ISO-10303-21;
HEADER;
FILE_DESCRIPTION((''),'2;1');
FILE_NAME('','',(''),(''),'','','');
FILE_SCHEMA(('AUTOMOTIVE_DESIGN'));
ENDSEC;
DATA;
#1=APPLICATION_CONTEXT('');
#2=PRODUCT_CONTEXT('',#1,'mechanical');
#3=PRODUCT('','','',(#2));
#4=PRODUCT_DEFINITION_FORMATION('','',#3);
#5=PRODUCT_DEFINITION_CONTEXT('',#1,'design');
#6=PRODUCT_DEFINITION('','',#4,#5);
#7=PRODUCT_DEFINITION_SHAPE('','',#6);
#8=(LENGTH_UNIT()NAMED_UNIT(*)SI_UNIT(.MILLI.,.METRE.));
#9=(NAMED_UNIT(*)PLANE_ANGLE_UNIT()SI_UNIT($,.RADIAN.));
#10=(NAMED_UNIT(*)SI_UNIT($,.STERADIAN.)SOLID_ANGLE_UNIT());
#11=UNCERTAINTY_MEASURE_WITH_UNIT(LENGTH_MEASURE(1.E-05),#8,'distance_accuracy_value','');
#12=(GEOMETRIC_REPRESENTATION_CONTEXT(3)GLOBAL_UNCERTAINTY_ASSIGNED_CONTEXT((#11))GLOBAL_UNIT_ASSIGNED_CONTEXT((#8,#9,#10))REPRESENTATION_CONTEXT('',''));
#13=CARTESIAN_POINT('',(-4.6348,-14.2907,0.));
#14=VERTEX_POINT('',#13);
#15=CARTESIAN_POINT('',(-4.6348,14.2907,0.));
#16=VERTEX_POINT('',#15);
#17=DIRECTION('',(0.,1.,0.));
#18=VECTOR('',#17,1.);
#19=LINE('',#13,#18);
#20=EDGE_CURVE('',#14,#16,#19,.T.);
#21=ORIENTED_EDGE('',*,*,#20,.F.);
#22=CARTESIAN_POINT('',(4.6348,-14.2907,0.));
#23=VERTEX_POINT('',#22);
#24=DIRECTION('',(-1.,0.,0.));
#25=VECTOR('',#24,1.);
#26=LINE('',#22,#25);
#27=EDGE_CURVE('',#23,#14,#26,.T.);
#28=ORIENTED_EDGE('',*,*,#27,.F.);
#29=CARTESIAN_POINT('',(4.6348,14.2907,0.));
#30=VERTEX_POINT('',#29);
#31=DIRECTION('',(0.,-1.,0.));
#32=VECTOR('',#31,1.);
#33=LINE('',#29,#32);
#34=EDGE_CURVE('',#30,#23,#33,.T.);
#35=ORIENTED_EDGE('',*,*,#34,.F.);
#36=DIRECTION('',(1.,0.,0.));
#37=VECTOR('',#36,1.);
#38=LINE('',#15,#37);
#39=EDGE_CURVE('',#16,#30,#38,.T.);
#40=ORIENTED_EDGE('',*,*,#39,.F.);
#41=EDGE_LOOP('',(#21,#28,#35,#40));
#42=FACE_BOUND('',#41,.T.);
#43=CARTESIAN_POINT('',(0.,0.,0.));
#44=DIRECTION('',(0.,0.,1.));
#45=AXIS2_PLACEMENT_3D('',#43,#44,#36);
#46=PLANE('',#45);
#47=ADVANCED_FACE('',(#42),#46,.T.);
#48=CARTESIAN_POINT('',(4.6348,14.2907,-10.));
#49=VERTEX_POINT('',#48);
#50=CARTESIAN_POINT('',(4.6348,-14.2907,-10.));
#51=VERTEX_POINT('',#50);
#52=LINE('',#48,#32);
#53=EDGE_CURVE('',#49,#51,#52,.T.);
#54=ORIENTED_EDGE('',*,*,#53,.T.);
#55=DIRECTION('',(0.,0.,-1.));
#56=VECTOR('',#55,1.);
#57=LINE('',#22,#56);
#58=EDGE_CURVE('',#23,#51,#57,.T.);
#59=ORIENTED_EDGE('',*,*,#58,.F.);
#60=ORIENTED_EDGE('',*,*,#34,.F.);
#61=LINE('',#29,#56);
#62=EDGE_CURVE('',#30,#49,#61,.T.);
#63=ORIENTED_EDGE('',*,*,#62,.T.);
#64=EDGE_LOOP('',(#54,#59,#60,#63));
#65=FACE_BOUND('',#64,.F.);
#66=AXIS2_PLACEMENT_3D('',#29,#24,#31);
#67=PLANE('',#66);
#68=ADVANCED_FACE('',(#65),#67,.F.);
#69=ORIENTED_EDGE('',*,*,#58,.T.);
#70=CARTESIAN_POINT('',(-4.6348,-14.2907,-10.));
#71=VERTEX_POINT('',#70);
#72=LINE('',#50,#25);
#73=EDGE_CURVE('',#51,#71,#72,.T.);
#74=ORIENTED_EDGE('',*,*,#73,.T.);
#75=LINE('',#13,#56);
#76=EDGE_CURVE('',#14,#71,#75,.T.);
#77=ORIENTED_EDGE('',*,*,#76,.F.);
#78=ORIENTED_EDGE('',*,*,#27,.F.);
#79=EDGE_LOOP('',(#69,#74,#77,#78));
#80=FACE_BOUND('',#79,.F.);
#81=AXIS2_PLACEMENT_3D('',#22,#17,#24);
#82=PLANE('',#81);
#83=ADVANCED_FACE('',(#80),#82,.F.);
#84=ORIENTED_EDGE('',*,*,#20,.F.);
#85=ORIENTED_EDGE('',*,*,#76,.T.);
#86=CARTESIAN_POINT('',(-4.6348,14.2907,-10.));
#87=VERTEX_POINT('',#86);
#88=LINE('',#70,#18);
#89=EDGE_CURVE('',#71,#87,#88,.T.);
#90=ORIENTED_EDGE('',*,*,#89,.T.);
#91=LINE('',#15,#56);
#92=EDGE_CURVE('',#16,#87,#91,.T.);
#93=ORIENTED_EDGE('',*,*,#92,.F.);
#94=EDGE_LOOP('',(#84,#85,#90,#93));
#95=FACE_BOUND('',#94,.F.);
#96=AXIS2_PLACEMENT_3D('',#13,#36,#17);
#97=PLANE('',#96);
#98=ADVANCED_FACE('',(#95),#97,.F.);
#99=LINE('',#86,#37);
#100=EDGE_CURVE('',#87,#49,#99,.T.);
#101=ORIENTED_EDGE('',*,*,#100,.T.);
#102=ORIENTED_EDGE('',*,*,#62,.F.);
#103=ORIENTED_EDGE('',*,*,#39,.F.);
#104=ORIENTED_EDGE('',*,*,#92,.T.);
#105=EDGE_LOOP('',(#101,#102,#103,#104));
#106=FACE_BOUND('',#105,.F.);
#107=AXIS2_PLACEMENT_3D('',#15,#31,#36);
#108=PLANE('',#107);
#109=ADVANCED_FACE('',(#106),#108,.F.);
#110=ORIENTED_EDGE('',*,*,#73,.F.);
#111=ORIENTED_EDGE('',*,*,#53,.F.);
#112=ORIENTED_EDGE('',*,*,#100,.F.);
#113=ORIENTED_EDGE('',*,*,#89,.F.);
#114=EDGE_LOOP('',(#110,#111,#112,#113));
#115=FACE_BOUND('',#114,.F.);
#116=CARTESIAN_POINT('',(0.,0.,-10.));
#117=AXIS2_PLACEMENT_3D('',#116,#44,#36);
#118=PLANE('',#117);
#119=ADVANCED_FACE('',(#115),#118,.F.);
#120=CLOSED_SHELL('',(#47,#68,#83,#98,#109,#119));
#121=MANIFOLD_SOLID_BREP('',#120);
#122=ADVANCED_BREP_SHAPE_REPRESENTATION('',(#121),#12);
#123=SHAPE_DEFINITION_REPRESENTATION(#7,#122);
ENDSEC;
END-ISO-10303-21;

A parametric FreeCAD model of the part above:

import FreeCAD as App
import Part
import Sketcher

V = App.Vector
Q = App.Units.Quantity


def add_polygon(sketch, points):
    """Adds a closed chain of lines whose ends are joined by coincident constraints."""
    first, n = sketch.GeometryCount, len(points)
    for a, b in zip(points, points[1:] + points[:1]):
        sketch.addGeometry(Part.LineSegment(App.Vector(*a, 0), App.Vector(*b, 0)), False)
    for i in range(n):
        sketch.addConstraint(Sketcher.Constraint("Coincident", first + i, 2, first + (i + 1) % n, 1))

doc = App.newDocument("Part")
params = doc.addObject("Spreadsheet::Sheet", "Params")
for row, (alias, value) in enumerate([
    ("pad1_length", "10 mm"),
], start=1):
    params.set(f"A{row}", alias)
    params.set(f"B{row}", "=" + value)
    params.setAlias(f"B{row}", alias)

body = doc.addObject("PartDesign::Body", "Body")

# Sketch on XY plane
sketch1 = doc.addObject("Sketcher::SketchObject", "Sketch")
body.addObject(sketch1)
sketch1.AttachmentSupport = (doc.XY_Plane, [""])
sketch1.MapMode = "FlatFace"
add_polygon(sketch1, [(5, 14), (-5, 14), (-5, -14), (5, -14)])  # lines 0-3
sketch1.addConstraint(Sketcher.Constraint("Horizontal", 0))
sketch1.addConstraint(Sketcher.Constraint("Vertical", 1))
sketch1.addConstraint(Sketcher.Constraint("Horizontal", 2))
sketch1.addConstraint(Sketcher.Constraint("Vertical", 3))
sketch1.addConstraint(Sketcher.Constraint("Symmetric", 0, 2, 2, 2, -1, 1))
sketch1.addConstraint(Sketcher.Constraint("DistanceX", 0, 2, 0, 1, Q("9.2696 mm")))
sketch1.addConstraint(Sketcher.Constraint("DistanceY", 1, 2, 1, 1, Q("28.5814 mm")))
pad1 = doc.addObject("PartDesign::Pad", "Pad")
body.addObject(pad1)
pad1.Profile = sketch1
pad1.setExpression("Length", "Params.pad1_length")
pad1.Reversed = True

doc.recompute()
